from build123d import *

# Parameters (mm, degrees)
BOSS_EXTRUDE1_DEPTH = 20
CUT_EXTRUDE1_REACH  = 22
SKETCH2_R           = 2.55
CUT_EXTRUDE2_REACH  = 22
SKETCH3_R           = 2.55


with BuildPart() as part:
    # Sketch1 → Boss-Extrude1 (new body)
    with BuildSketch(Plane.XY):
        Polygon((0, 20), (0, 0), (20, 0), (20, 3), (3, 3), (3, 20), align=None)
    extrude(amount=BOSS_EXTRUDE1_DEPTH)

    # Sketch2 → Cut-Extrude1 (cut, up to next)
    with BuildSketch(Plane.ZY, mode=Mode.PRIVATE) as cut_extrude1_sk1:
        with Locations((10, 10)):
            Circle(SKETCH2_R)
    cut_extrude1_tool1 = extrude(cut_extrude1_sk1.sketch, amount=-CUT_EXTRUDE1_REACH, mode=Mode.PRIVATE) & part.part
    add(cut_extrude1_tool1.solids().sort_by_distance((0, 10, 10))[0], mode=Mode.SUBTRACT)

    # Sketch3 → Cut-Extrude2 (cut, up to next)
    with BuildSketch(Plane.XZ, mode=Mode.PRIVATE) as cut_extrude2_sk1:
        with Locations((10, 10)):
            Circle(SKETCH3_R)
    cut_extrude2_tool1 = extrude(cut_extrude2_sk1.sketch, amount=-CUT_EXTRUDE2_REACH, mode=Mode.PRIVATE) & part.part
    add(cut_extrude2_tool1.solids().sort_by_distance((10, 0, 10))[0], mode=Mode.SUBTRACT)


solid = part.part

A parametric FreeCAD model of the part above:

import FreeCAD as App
import Part
import Sketcher

V = App.Vector


def add_polygon(sketch, points):
    """Adds a closed chain of lines whose ends are joined by coincident constraints."""
    first, n = sketch.GeometryCount, len(points)
    for a, b in zip(points, points[1:] + points[:1]):
        sketch.addGeometry(Part.LineSegment(App.Vector(*a, 0), App.Vector(*b, 0)), False)
    for i in range(n):
        sketch.addConstraint(Sketcher.Constraint("Coincident", first + i, 2, first + (i + 1) % n, 1))

doc = App.newDocument("Part")
body = doc.addObject("PartDesign::Body", "Body")

# Sketch on XY plane
sketch1 = body.newObject("Sketcher::SketchObject", "Sketch")
sketch1.AttachmentSupport = (doc.getObject("XY_Plane"), [""])
sketch1.MapMode = "FlatFace"
add_polygon(sketch1, [(0, 20), (0, 0), (20, 0), (20, 3), (3, 3), (3, 20)])  # lines 0-5
sketch1.addConstraint([
    Sketcher.Constraint("Vertical", 0),
    Sketcher.Constraint("Horizontal", 1),
    Sketcher.Constraint("Vertical", 2),
    Sketcher.Constraint("Horizontal", 3),
    Sketcher.Constraint("Vertical", 4),
    Sketcher.Constraint("Horizontal", 5),
    Sketcher.Constraint("Coincident", 0, 2, -1, 1),
    Sketcher.Constraint("Equal", 1, 0),
    Sketcher.Constraint("Equal", 5, 2),
    Sketcher.Constraint("DistanceX", 1, 1, 1, 2, 20.0),
    Sketcher.Constraint("DistanceX", 3, 2, 3, 1, 17.0),
])
pad1 = body.newObject("PartDesign::Pad", "Pad")
pad1.Profile = sketch1
pad1.Length = 20

# Sketch on YZ plane
sketch2 = body.newObject("Sketcher::SketchObject", "Sketch001")
sketch2.AttachmentSupport = (doc.getObject("YZ_Plane"), [""])
sketch2.MapMode = "FlatFace"
sketch2.addGeometry(Part.Circle(V(10, 10, 0), V(0, 0, 1), 2.5), False)
sketch2.addConstraint([
    Sketcher.Constraint("Diameter", 0, 5.1),
    Sketcher.Constraint("DistanceX", -1, 1, 0, 3, 10.0),
    Sketcher.Constraint("DistanceY", -1, 1, 0, 3, 10.0),
])
pocket1 = body.newObject("PartDesign::Pocket", "Pocket")
pocket1.Profile = sketch2
pocket1.Type = "UpToFirst"
pocket1.Reversed = True

# Sketch on XZ plane
sketch3 = body.newObject("Sketcher::SketchObject", "Sketch002")
sketch3.AttachmentSupport = (doc.getObject("XZ_Plane"), [""])
sketch3.MapMode = "FlatFace"
sketch3.addGeometry(Part.Circle(V(10, 10, 0), V(0, 0, 1), 2.5), False)
sketch3.addConstraint([
    Sketcher.Constraint("Diameter", 0, 5.1),
    Sketcher.Constraint("DistanceX", -1, 1, 0, 3, 10.0),
    Sketcher.Constraint("DistanceY", -1, 1, 0, 3, 10.0),
])
pocket2 = body.newObject("PartDesign::Pocket", "Pocket001")
pocket2.Profile = sketch3
pocket2.Type = "UpToFirst"

doc.recompute()
